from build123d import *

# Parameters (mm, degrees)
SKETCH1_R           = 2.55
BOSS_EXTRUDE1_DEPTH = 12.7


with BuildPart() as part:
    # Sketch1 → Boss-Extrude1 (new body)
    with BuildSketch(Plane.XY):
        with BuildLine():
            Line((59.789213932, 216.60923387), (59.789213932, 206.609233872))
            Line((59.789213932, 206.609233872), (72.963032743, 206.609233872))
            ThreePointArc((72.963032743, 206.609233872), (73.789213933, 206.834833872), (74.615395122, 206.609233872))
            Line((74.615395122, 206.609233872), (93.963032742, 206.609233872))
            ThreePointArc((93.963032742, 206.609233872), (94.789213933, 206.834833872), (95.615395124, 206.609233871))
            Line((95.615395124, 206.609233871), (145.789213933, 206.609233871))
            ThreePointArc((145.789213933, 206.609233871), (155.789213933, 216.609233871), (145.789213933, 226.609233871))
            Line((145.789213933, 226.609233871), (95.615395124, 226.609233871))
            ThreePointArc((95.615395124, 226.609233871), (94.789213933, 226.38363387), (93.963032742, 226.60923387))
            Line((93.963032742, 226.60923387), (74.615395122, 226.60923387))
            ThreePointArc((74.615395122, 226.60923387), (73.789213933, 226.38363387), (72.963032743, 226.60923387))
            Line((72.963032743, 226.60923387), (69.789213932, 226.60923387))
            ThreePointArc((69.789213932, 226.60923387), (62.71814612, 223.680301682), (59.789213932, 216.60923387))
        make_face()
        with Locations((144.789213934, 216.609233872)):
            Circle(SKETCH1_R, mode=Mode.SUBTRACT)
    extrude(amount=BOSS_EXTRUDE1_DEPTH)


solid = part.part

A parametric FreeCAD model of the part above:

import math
import FreeCAD as App
import Part
import Sketcher
from FreeCAD import Vector
Q = App.Units.Quantity

doc = App.newDocument("Part")
body = doc.addObject("PartDesign::Body", "Body")

# Sketch on XY plane
sketch1 = body.newObject("Sketcher::SketchObject", "Sketch")
sketch1.AttachmentSupport = (doc.getObject("XY_Plane"), [""])
sketch1.MapMode = "FlatFace"
sketch1.addGeometry(Part.LineSegment(Vector(59.8, 216.6, 0), Vector(59.8, 206.6, 0)), False)
sketch1.addGeometry(Part.LineSegment(Vector(59.8, 206.6, 0), Vector(73, 206.6, 0)), False)
sketch1.addGeometry(Part.ArcOfCircle(Part.Circle(Vector(73.8, 205.2, 0), Vector(0, 0, 1), 1.6), math.radians(59), math.radians(121)), False)
sketch1.addGeometry(Part.LineSegment(Vector(74.6, 206.6, 0), Vector(94, 206.6, 0)), False)
sketch1.addGeometry(Part.ArcOfCircle(Part.Circle(Vector(94.8, 205.2, 0), Vector(0, 0, 1), 1.6), math.radians(59), math.radians(121)), False)
sketch1.addGeometry(Part.LineSegment(Vector(95.6, 206.6, 0), Vector(145.8, 206.6, 0)), False)
sketch1.addGeometry(Part.ArcOfCircle(Part.Circle(Vector(145.8, 216.6, 0), Vector(0, 0, 1), 10), math.radians(-90), math.radians(90)), False)
sketch1.addGeometry(Part.LineSegment(Vector(145.8, 226.6, 0), Vector(95.6, 226.6, 0)), False)
sketch1.addGeometry(Part.ArcOfCircle(Part.Circle(Vector(94.8, 228, 0), Vector(0, 0, 1), 1.6), math.radians(-121), math.radians(-59)), False)
sketch1.addGeometry(Part.LineSegment(Vector(94, 226.6, 0), Vector(74.6, 226.6, 0)), False)
sketch1.addGeometry(Part.ArcOfCircle(Part.Circle(Vector(73.8, 228, 0), Vector(0, 0, 1), 1.6), math.radians(-121), math.radians(-59)), False)
sketch1.addGeometry(Part.LineSegment(Vector(73, 226.6, 0), Vector(69.8, 226.6, 0)), False)
sketch1.addGeometry(Part.ArcOfCircle(Part.Circle(Vector(69.8, 216.6, 0), Vector(0, 0, 1), 10), math.radians(90), math.radians(180)), False)
sketch1.addGeometry(Part.Circle(Vector(144.8, 216.6, 0), Vector(0, 0, 1), 2.5), False)
sketch1.addConstraint(Sketcher.Constraint("Coincident", 0, 2, 1, 1))
sketch1.addConstraint(Sketcher.Constraint("Coincident", 1, 2, 2, 2))
sketch1.addConstraint(Sketcher.Constraint("Coincident", 2, 1, 3, 1))
sketch1.addConstraint(Sketcher.Constraint("Coincident", 3, 2, 4, 2))
sketch1.addConstraint(Sketcher.Constraint("Coincident", 4, 1, 5, 1))
sketch1.addConstraint(Sketcher.Constraint("Tangent", 5, 2, 6, 1))
sketch1.addConstraint(Sketcher.Constraint("Tangent", 6, 2, 7, 1))
sketch1.addConstraint(Sketcher.Constraint("Coincident", 7, 2, 8, 2))
sketch1.addConstraint(Sketcher.Constraint("Coincident", 8, 1, 9, 1))
sketch1.addConstraint(Sketcher.Constraint("Coincident", 9, 2, 10, 2))
sketch1.addConstraint(Sketcher.Constraint("Coincident", 10, 1, 11, 1))
sketch1.addConstraint(Sketcher.Constraint("Tangent", 11, 2, 12, 1))
sketch1.addConstraint(Sketcher.Constraint("Tangent", 12, 2, 0, 1))
sketch1.addConstraint(Sketcher.Constraint("Vertical", 0))
sketch1.addConstraint(Sketcher.Constraint("Horizontal", 1))
sketch1.addConstraint(Sketcher.Constraint("Horizontal", 3))
sketch1.addConstraint(Sketcher.Constraint("Horizontal", 5))
sketch1.addConstraint(Sketcher.Constraint("Horizontal", 7))
sketch1.addConstraint(Sketcher.Constraint("Horizontal", 9))
sketch1.addConstraint(Sketcher.Constraint("Horizontal", 11))
sketch1.addConstraint(Sketcher.Constraint("Equal", 2, 4))
sketch1.addConstraint(Sketcher.Constraint("Equal", 4, 8))
sketch1.addConstraint(Sketcher.Constraint("Equal", 8, 10))
sketch1.addConstraint(Sketcher.Constraint("Equal", 6, 12))
sketch1.addConstraint(Sketcher.Constraint("Horizontal", 2, 3, 4, 3))
sketch1.addConstraint(Sketcher.Constraint("Horizontal", 8, 3, 10, 3))
sketch1.addConstraint(Sketcher.Constraint("Horizontal", 6, 3, 12, 3))
sketch1.addConstraint(Sketcher.Constraint("Horizontal", 12, 3, 13, 3))
sketch1.addConstraint(Sketcher.Constraint("Horizontal", 1, 2, 2, 1))
sketch1.addConstraint(Sketcher.Constraint("Horizontal", 3, 2, 4, 1))
sketch1.addConstraint(Sketcher.Constraint("Horizontal", 7, 2, 8, 1))
sketch1.addConstraint(Sketcher.Constraint("Vertical", 4, 3, 8, 3))
sketch1.addConstraint(Sketcher.Constraint("Vertical", 2, 3, 10, 3))
sketch1.addConstraint(Sketcher.Constraint("Vertical", 4, 1, 7, 2))
sketch1.addConstraint(Sketcher.Constraint("Radius", 6, Q("10 mm")))
sketch1.addConstraint(Sketcher.Constraint("Diameter", 13, Q("5.1 mm")))
sketch1.addConstraint(Sketcher.Constraint("DistanceX", 2, 3, 4, 3, Q("21 mm")))
sketch1.addConstraint(Sketcher.Constraint("DistanceX", 4, 3, 6, 3, Q("51 mm")))
sketch1.addConstraint(Sketcher.Constraint("DistanceX", 12, 3, 2, 3, Q("4 mm")))
sketch1.addConstraint(Sketcher.Constraint("DistanceX", 13, 3, 6, 3, Q("1 mm")))
sketch1.addConstraint(Sketcher.Constraint("Radius", 2, Q("1.6256 mm")))
sketch1.addConstraint(Sketcher.Constraint("DistanceY", 4, 3, 6, 3, Q("11.4 mm")))
sketch1.addConstraint(Sketcher.Constraint("DistanceX", -1, 1, 2, 3, Q("73.789214 mm")))
sketch1.addConstraint(Sketcher.Constraint("DistanceY", -1, 1, 2, 3, Q("205.209234 mm")))
pad1 = body.newObject("PartDesign::Pad", "Pad")
pad1.Profile = sketch1
pad1.Length = 12.7

doc.recompute()
